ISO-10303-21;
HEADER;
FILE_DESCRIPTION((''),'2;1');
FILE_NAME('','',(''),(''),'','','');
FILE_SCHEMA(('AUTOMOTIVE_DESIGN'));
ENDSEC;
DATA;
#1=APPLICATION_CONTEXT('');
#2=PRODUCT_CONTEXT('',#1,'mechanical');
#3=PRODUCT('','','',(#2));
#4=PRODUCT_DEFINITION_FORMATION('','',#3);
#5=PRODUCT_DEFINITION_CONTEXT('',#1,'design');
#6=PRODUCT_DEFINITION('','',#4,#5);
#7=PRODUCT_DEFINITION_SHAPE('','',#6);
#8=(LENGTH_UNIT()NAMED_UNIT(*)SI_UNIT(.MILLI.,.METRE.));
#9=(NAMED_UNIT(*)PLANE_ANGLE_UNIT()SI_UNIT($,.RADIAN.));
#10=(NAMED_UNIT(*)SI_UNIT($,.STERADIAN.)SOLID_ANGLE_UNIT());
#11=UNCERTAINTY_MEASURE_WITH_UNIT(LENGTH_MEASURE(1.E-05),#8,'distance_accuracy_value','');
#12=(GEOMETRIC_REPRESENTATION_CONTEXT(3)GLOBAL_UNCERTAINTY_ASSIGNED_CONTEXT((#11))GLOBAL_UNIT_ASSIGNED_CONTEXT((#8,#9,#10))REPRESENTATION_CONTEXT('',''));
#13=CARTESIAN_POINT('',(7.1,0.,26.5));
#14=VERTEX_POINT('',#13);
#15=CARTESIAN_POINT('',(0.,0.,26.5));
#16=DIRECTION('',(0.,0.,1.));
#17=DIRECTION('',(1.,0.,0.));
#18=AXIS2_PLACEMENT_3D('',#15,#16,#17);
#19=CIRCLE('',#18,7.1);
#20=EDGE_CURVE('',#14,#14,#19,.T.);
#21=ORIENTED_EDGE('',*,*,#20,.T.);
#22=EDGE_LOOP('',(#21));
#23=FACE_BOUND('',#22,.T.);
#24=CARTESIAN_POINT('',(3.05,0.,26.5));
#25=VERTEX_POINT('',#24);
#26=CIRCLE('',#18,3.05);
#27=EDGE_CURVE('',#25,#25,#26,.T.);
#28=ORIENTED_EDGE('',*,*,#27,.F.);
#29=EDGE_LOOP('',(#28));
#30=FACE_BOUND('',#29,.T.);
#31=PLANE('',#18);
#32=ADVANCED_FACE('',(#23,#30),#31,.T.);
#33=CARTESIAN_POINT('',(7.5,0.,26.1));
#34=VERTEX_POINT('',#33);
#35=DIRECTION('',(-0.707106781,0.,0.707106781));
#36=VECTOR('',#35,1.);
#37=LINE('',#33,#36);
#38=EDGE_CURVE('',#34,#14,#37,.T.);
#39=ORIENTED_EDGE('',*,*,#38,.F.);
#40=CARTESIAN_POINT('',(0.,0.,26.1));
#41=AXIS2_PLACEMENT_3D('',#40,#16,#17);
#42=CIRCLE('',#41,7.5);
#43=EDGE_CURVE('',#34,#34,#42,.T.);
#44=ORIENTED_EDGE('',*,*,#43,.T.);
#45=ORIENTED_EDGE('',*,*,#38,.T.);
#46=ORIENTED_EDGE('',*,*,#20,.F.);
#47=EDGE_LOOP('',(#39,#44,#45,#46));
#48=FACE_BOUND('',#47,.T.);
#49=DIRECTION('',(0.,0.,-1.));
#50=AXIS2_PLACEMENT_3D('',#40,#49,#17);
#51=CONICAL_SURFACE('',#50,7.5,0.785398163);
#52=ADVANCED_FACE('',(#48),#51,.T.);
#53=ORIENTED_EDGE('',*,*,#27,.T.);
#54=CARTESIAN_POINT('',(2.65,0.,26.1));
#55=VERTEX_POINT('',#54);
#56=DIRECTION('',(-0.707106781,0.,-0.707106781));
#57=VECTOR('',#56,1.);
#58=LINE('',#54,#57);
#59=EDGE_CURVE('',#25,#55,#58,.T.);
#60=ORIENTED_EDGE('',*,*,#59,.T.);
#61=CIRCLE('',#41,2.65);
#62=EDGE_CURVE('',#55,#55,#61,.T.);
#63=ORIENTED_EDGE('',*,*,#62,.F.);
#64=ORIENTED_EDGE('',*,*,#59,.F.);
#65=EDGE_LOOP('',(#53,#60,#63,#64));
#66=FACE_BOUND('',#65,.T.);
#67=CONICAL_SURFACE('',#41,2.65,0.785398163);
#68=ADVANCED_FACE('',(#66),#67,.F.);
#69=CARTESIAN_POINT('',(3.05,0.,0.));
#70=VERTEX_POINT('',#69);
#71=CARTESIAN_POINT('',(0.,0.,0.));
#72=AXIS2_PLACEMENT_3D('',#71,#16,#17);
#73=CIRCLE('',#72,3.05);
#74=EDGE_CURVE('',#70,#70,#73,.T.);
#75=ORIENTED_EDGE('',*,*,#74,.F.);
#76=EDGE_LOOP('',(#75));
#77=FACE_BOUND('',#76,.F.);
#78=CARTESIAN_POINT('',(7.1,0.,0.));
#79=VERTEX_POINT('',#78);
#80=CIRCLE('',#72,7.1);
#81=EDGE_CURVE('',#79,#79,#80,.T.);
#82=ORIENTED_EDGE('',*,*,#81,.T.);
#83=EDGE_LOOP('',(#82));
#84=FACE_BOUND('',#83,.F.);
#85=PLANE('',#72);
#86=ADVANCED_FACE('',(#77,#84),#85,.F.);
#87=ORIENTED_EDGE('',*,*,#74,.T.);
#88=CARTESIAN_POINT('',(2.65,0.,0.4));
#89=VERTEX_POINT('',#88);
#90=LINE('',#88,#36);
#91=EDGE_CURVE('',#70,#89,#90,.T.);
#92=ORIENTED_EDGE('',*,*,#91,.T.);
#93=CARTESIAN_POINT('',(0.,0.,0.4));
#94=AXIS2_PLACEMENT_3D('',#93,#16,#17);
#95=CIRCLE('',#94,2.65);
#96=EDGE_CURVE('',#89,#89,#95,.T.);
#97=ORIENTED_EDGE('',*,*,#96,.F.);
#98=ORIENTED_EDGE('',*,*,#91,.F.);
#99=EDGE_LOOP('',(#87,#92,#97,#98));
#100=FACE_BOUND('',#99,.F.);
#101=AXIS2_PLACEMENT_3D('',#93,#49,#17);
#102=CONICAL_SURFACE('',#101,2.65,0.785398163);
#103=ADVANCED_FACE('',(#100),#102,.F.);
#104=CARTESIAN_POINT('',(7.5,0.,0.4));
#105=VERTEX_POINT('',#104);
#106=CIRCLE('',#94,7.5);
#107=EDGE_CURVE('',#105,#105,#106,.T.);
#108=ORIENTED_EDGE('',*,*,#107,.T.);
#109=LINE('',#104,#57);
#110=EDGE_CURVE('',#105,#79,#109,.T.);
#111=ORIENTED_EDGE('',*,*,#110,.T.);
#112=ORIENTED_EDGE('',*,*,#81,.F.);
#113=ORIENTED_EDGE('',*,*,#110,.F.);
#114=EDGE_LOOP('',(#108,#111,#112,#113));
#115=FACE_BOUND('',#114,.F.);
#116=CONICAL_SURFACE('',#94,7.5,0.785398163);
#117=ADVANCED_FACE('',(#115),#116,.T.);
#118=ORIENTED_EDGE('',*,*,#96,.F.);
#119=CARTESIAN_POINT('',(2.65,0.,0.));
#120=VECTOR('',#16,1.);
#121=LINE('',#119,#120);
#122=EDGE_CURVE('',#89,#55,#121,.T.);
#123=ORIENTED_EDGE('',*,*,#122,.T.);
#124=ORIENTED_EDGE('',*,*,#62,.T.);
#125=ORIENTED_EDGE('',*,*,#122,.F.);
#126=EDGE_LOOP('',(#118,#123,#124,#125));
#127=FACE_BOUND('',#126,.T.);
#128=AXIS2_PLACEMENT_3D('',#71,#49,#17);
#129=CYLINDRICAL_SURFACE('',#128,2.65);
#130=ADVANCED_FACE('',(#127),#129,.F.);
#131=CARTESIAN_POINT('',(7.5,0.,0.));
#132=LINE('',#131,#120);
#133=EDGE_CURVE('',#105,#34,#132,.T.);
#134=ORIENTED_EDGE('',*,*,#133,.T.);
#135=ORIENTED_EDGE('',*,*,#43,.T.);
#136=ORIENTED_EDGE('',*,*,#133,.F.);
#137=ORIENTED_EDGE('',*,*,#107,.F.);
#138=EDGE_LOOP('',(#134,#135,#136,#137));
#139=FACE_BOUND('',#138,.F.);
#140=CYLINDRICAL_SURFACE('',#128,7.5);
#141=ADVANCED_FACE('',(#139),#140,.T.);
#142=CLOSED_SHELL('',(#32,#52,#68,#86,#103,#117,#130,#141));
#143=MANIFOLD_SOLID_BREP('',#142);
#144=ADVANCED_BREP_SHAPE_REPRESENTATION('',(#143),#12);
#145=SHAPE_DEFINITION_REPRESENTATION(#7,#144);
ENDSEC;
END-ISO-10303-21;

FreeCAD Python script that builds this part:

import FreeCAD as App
import Part
import Sketcher
from FreeCAD import Vector
Q = App.Units.Quantity


def edges_at(feature, points):
    """Names of the edges that pass closest to the given points."""
    edges = feature.Shape.Edges
    near = lambda p: min(range(len(edges)), key=lambda i: edges[i].distToShape(Part.Vertex(*p))[0])
    return sorted({f"Edge{near(p) + 1}" for p in points})

doc = App.newDocument("Part")
body = doc.addObject("PartDesign::Body", "Body")

sketch1 = body.newObject("Sketcher::SketchObject", "Sketch")
sketch1.AttachmentSupport = (doc.getObject("XY_Plane"), [""])
sketch1.MapMode = "FlatFace"
sketch1.addGeometry(Part.Circle(Vector(0, 0, 0), Vector(0, 0, 1), 2.65), False)
sketch1.addConstraint([
    Sketcher.Constraint("Coincident", 0, 3, -1, 1),
    Sketcher.Constraint("Diameter", 0, Q("5.3 mm")),
])
pad1 = body.newObject("PartDesign::Pad", "Pad")
pad1.Profile = sketch1
pad1.Length = 26.5
body2 = doc.addObject("PartDesign::Body", "Body001")

sketch2 = body2.newObject("Sketcher::SketchObject", "Sketch001")
sketch2.AttachmentSupport = (doc.getObject("XY_Plane001"), [""])
sketch2.MapMode = "FlatFace"
sketch2.addGeometry(Part.Circle(Vector(0, 0, 0), Vector(0, 0, 1), 7.5), False)
sketch2.addConstraint([
    Sketcher.Constraint("Coincident", 0, 3, -1, 1),
    Sketcher.Constraint("Diameter", 0, Q("15 mm")),
])
pad2 = body2.newObject("PartDesign::Pad", "Pad001")
pad2.Profile = sketch2
pad2.Length = 26.5
doc.recompute()

boolean = body2.newObject("PartDesign::Boolean", "Boolean")
boolean.Type = "Cut"
boolean.addObjects([body])
doc.recompute()

chamfer = body2.newObject("PartDesign::Chamfer", "Chamfer")
chamfer.Base = (boolean, edges_at(boolean, [
    (-7.5, 0, 26.5),
    (-7.5, 0, 0),
    (-2.65, 0, 26.5),
    (-2.65, 0, 0),
]))
chamfer.Size = 0.4

doc.recompute()
